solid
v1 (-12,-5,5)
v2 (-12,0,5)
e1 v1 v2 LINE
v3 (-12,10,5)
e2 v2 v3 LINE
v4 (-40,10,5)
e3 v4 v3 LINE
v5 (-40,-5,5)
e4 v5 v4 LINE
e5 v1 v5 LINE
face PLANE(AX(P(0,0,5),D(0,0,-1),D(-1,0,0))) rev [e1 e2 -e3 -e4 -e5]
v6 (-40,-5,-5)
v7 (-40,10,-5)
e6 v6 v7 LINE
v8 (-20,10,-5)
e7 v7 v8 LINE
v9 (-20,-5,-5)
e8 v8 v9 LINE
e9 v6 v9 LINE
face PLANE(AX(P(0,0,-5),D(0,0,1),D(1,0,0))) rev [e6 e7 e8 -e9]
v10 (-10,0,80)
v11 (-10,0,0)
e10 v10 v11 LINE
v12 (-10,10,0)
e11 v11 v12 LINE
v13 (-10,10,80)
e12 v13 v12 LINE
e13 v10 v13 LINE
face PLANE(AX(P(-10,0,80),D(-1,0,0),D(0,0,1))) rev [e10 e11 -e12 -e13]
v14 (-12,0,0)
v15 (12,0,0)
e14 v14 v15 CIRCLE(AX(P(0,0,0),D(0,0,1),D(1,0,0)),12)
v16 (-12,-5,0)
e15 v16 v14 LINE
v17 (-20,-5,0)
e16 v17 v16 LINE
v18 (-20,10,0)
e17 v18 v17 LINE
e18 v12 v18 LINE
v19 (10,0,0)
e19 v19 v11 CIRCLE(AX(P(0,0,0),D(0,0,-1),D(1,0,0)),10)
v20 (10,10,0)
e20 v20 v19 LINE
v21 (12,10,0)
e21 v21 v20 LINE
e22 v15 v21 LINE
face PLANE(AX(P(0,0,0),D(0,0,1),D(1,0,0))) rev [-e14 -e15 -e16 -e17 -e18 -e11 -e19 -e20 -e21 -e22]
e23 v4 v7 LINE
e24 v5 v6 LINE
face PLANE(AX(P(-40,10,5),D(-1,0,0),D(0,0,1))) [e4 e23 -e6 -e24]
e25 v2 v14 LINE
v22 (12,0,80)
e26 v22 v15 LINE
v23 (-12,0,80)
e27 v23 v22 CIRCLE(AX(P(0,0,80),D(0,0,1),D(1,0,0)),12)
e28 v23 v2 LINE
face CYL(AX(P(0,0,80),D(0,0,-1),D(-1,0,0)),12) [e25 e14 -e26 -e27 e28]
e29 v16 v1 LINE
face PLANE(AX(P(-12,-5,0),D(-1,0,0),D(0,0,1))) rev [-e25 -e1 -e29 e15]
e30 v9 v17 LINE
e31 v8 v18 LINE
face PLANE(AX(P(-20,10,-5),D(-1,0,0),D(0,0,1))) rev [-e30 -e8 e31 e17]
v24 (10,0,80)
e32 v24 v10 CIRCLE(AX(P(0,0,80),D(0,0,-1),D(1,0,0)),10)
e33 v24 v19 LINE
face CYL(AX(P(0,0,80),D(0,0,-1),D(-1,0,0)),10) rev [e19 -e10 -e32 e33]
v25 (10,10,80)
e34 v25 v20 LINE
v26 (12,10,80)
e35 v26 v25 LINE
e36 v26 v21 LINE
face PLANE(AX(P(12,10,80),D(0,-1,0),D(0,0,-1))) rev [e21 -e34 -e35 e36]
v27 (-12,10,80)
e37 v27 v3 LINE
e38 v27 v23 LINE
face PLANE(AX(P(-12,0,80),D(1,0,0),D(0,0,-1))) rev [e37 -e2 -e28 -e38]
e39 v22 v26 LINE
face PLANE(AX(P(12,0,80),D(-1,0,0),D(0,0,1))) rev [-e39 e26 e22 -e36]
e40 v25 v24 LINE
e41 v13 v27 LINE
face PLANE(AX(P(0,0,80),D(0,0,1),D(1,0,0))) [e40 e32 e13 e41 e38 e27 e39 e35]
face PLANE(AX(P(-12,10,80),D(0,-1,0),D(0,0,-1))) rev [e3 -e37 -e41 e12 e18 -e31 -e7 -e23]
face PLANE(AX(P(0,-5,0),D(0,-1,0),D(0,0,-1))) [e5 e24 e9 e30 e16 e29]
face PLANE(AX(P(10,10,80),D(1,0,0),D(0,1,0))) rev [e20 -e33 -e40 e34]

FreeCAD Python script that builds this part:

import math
import FreeCAD as App
import Part
import Sketcher
from FreeCAD import Vector
Q = App.Units.Quantity

doc = App.newDocument("Part")
params = doc.addObject("Spreadsheet::Sheet", "Params")
for row, (alias, value) in enumerate([
    ("sketch1_radius", "12 mm"),
    ("sketch1_radius2", "10 mm"),
    ("sketch1_height", "10 mm"),
    ("pad1_length", "80 mm"),
    ("sketch2_width", "30 mm"),
    ("sketch2_height", "10 mm"),
    ("pad2_length", "5 mm"),
    ("sketch3_width", "20 mm"),
    ("sketch3_height", "10 mm"),
    ("pad3_length", "5 mm"),
    ("sketch4_width", "28 mm"),
    ("sketch4_width2", "20 mm"),
    ("sketch4_height", "5 mm"),
    ("pad4_length", "5 mm"),
], start=1):
    params.set(f"A{row}", alias)
    params.set(f"B{row}", "=" + value)
    params.setAlias(f"B{row}", alias)

body = doc.addObject("PartDesign::Body", "Body")

# Sketch on XY plane
sketch1 = body.newObject("Sketcher::SketchObject", "Sketch")
sketch1.AttachmentSupport = (doc.getObject("XY_Plane"), [""])
sketch1.MapMode = "FlatFace"
sketch1.addGeometry([
    Part.LineSegment(Vector(-10, 0, 0), Vector(-10, 10, 0)),  # 0
    Part.LineSegment(Vector(-10, 10, 0), Vector(-12, 10, 0)),  # 1
    Part.LineSegment(Vector(-12, 10, 0), Vector(-12, 0, 0)),  # 2
    Part.ArcOfCircle(Part.Circle(Vector(0, 0, 0), Vector(0, 0, 1), 12), math.radians(180), math.radians(360)),  # 3
    Part.LineSegment(Vector(12, 0, 0), Vector(12, 10, 0)),  # 4
    Part.LineSegment(Vector(12, 10, 0), Vector(10, 10, 0)),  # 5
    Part.LineSegment(Vector(10, 10, 0), Vector(10, 0, 0)),  # 6
    Part.ArcOfCircle(Part.Circle(Vector(0, 0, 0), Vector(0, 0, 1), 10), math.radians(180), math.radians(360)),  # 7
], False)
sketch1.addConstraint([
    Sketcher.Constraint("Coincident", 0, 2, 1, 1),
    Sketcher.Constraint("Coincident", 1, 2, 2, 1),
    Sketcher.Constraint("Tangent", 2, 2, 3, 1),
    Sketcher.Constraint("Tangent", 3, 2, 4, 1),
    Sketcher.Constraint("Coincident", 4, 2, 5, 1),
    Sketcher.Constraint("Coincident", 5, 2, 6, 1),
    Sketcher.Constraint("Tangent", 6, 2, 7, 2),
    Sketcher.Constraint("Tangent", 7, 1, 0, 1),
    Sketcher.Constraint("Vertical", 0),
    Sketcher.Constraint("Horizontal", 1),
    Sketcher.Constraint("Vertical", 2),
    Sketcher.Constraint("Vertical", 4),
    Sketcher.Constraint("Horizontal", 5),
    Sketcher.Constraint("Vertical", 6),
    Sketcher.Constraint("Coincident", 3, 3, -1, 1),
    Sketcher.Constraint("Coincident", 7, 3, -1, 1),
    Sketcher.Constraint("Horizontal", 1, 2, 4, 2),
    Sketcher.Constraint("Radius", 3, Q("12 mm")),
    Sketcher.Constraint("Radius", 7, Q("10 mm")),
    Sketcher.Constraint("DistanceY", 0, 1, 0, 2, Q("10 mm")),
])
sketch1.setExpression("Constraints[17]", "Params.sketch1_radius")
sketch1.setExpression("Constraints[18]", "Params.sketch1_radius2")
sketch1.setExpression("Constraints[19]", "Params.sketch1_height")
pad1 = body.newObject("PartDesign::Pad", "Pad")
pad1.Profile = sketch1
pad1.setExpression("Length", "Params.pad1_length")

# Sketch on XY plane
sketch2 = body.newObject("Sketcher::SketchObject", "Sketch001")
sketch2.AttachmentSupport = (doc.getObject("XY_Plane"), [""])
sketch2.MapMode = "FlatFace"
sketch2.addGeometry([
    Part.LineSegment(Vector(-10, 10, 0), Vector(-10, 0, 0)),
    Part.LineSegment(Vector(-10, 0, 0), Vector(-40, 0, 0)),
    Part.LineSegment(Vector(-40, 0, 0), Vector(-40, 10, 0)),
    Part.LineSegment(Vector(-40, 10, 0), Vector(-10, 10, 0)),
], False)
sketch2.addConstraint([
    Sketcher.Constraint("Coincident", 0, 2, 1, 1),
    Sketcher.Constraint("Coincident", 1, 2, 2, 1),
    Sketcher.Constraint("Coincident", 2, 2, 3, 1),
    Sketcher.Constraint("Coincident", 3, 2, 0, 1),
    Sketcher.Constraint("Vertical", 0),
    Sketcher.Constraint("Horizontal", 1),
    Sketcher.Constraint("Vertical", 2),
    Sketcher.Constraint("Horizontal", 3),
    Sketcher.Constraint("PointOnObject", 0, 2, -1),
    Sketcher.Constraint("DistanceX", 1, 2, 1, 1, Q("30 mm")),
    Sketcher.Constraint("DistanceY", 0, 2, 0, 1, Q("10 mm")),
    Sketcher.Constraint("DistanceX", 0, 2, -1, 1, Q("10 mm")),
])
sketch2.setExpression("Constraints[9]", "Params.sketch2_width")
sketch2.setExpression("Constraints[10]", "Params.sketch2_height")
pad2 = body.newObject("PartDesign::Pad", "Pad001")
pad2.Profile = sketch2
pad2.setExpression("Length", "Params.pad2_length")

# Sketch on XY plane
sketch3 = body.newObject("Sketcher::SketchObject", "Sketch002")
sketch3.AttachmentSupport = (doc.getObject("XY_Plane"), [""])
sketch3.MapMode = "FlatFace"
sketch3.addGeometry([
    Part.LineSegment(Vector(-20, 10, 0), Vector(-20, 0, 0)),
    Part.LineSegment(Vector(-20, 0, 0), Vector(-40, 0, 0)),
    Part.LineSegment(Vector(-40, 0, 0), Vector(-40, 10, 0)),
    Part.LineSegment(Vector(-40, 10, 0), Vector(-20, 10, 0)),
], False)
sketch3.addConstraint([
    Sketcher.Constraint("Coincident", 0, 2, 1, 1),
    Sketcher.Constraint("Coincident", 1, 2, 2, 1),
    Sketcher.Constraint("Coincident", 2, 2, 3, 1),
    Sketcher.Constraint("Coincident", 3, 2, 0, 1),
    Sketcher.Constraint("Vertical", 0),
    Sketcher.Constraint("Horizontal", 1),
    Sketcher.Constraint("Vertical", 2),
    Sketcher.Constraint("Horizontal", 3),
    Sketcher.Constraint("PointOnObject", 0, 2, -1),
    Sketcher.Constraint("DistanceX", 1, 2, 1, 1, Q("20 mm")),
    Sketcher.Constraint("DistanceY", 0, 2, 0, 1, Q("10 mm")),
    Sketcher.Constraint("DistanceX", 0, 2, -1, 1, Q("20 mm")),
])
sketch3.setExpression("Constraints[9]", "Params.sketch3_width")
sketch3.setExpression("Constraints[10]", "Params.sketch3_height")
pad3 = body.newObject("PartDesign::Pad", "Pad002")
pad3.Profile = sketch3
pad3.setExpression("Length", "Params.pad3_length")
pad3.Reversed = True

# Sketch on XZ plane
sketch4 = body.newObject("Sketcher::SketchObject", "Sketch003")
sketch4.AttachmentSupport = (doc.getObject("XZ_Plane"), [""])
sketch4.MapMode = "FlatFace"
sketch4.addGeometry([
    Part.LineSegment(Vector(-12, 0, 0), Vector(-12, 5, 0)),  # 0
    Part.LineSegment(Vector(-12, 5, 0), Vector(-40, 5, 0)),  # 1
    Part.LineSegment(Vector(-40, 5, 0), Vector(-40, -5, 0)),  # 2
    Part.LineSegment(Vector(-40, -5, 0), Vector(-20, -5, 0)),  # 3
    Part.LineSegment(Vector(-20, -5, 0), Vector(-20, 0, 0)),  # 4
    Part.LineSegment(Vector(-20, 0, 0), Vector(-12, 0, 0)),  # 5
], False)
sketch4.addConstraint([
    Sketcher.Constraint("Coincident", 0, 2, 1, 1),
    Sketcher.Constraint("Coincident", 1, 2, 2, 1),
    Sketcher.Constraint("Coincident", 2, 2, 3, 1),
    Sketcher.Constraint("Coincident", 3, 2, 4, 1),
    Sketcher.Constraint("Coincident", 4, 2, 5, 1),
    Sketcher.Constraint("Coincident", 5, 2, 0, 1),
    Sketcher.Constraint("Vertical", 0),
    Sketcher.Constraint("Horizontal", 1),
    Sketcher.Constraint("Vertical", 2),
    Sketcher.Constraint("Horizontal", 3),
    Sketcher.Constraint("Vertical", 4),
    Sketcher.Constraint("Horizontal", 5),
    Sketcher.Constraint("PointOnObject", 4, 2, -1),
    Sketcher.Constraint("Equal", 0, 4),
    Sketcher.Constraint("DistanceX", 1, 2, 1, 1, Q("28 mm")),
    Sketcher.Constraint("DistanceX", 3, 1, 3, 2, Q("20 mm")),
    Sketcher.Constraint("DistanceY", 0, 1, 0, 2, Q("5 mm")),
    Sketcher.Constraint("DistanceX", 0, 2, -1, 1, Q("12 mm")),
])
sketch4.setExpression("Constraints[14]", "Params.sketch4_width")
sketch4.setExpression("Constraints[15]", "Params.sketch4_width2")
sketch4.setExpression("Constraints[16]", "Params.sketch4_height")
pad4 = body.newObject("PartDesign::Pad", "Pad003")
pad4.Profile = sketch4
pad4.setExpression("Length", "Params.pad4_length")

doc.recompute()
